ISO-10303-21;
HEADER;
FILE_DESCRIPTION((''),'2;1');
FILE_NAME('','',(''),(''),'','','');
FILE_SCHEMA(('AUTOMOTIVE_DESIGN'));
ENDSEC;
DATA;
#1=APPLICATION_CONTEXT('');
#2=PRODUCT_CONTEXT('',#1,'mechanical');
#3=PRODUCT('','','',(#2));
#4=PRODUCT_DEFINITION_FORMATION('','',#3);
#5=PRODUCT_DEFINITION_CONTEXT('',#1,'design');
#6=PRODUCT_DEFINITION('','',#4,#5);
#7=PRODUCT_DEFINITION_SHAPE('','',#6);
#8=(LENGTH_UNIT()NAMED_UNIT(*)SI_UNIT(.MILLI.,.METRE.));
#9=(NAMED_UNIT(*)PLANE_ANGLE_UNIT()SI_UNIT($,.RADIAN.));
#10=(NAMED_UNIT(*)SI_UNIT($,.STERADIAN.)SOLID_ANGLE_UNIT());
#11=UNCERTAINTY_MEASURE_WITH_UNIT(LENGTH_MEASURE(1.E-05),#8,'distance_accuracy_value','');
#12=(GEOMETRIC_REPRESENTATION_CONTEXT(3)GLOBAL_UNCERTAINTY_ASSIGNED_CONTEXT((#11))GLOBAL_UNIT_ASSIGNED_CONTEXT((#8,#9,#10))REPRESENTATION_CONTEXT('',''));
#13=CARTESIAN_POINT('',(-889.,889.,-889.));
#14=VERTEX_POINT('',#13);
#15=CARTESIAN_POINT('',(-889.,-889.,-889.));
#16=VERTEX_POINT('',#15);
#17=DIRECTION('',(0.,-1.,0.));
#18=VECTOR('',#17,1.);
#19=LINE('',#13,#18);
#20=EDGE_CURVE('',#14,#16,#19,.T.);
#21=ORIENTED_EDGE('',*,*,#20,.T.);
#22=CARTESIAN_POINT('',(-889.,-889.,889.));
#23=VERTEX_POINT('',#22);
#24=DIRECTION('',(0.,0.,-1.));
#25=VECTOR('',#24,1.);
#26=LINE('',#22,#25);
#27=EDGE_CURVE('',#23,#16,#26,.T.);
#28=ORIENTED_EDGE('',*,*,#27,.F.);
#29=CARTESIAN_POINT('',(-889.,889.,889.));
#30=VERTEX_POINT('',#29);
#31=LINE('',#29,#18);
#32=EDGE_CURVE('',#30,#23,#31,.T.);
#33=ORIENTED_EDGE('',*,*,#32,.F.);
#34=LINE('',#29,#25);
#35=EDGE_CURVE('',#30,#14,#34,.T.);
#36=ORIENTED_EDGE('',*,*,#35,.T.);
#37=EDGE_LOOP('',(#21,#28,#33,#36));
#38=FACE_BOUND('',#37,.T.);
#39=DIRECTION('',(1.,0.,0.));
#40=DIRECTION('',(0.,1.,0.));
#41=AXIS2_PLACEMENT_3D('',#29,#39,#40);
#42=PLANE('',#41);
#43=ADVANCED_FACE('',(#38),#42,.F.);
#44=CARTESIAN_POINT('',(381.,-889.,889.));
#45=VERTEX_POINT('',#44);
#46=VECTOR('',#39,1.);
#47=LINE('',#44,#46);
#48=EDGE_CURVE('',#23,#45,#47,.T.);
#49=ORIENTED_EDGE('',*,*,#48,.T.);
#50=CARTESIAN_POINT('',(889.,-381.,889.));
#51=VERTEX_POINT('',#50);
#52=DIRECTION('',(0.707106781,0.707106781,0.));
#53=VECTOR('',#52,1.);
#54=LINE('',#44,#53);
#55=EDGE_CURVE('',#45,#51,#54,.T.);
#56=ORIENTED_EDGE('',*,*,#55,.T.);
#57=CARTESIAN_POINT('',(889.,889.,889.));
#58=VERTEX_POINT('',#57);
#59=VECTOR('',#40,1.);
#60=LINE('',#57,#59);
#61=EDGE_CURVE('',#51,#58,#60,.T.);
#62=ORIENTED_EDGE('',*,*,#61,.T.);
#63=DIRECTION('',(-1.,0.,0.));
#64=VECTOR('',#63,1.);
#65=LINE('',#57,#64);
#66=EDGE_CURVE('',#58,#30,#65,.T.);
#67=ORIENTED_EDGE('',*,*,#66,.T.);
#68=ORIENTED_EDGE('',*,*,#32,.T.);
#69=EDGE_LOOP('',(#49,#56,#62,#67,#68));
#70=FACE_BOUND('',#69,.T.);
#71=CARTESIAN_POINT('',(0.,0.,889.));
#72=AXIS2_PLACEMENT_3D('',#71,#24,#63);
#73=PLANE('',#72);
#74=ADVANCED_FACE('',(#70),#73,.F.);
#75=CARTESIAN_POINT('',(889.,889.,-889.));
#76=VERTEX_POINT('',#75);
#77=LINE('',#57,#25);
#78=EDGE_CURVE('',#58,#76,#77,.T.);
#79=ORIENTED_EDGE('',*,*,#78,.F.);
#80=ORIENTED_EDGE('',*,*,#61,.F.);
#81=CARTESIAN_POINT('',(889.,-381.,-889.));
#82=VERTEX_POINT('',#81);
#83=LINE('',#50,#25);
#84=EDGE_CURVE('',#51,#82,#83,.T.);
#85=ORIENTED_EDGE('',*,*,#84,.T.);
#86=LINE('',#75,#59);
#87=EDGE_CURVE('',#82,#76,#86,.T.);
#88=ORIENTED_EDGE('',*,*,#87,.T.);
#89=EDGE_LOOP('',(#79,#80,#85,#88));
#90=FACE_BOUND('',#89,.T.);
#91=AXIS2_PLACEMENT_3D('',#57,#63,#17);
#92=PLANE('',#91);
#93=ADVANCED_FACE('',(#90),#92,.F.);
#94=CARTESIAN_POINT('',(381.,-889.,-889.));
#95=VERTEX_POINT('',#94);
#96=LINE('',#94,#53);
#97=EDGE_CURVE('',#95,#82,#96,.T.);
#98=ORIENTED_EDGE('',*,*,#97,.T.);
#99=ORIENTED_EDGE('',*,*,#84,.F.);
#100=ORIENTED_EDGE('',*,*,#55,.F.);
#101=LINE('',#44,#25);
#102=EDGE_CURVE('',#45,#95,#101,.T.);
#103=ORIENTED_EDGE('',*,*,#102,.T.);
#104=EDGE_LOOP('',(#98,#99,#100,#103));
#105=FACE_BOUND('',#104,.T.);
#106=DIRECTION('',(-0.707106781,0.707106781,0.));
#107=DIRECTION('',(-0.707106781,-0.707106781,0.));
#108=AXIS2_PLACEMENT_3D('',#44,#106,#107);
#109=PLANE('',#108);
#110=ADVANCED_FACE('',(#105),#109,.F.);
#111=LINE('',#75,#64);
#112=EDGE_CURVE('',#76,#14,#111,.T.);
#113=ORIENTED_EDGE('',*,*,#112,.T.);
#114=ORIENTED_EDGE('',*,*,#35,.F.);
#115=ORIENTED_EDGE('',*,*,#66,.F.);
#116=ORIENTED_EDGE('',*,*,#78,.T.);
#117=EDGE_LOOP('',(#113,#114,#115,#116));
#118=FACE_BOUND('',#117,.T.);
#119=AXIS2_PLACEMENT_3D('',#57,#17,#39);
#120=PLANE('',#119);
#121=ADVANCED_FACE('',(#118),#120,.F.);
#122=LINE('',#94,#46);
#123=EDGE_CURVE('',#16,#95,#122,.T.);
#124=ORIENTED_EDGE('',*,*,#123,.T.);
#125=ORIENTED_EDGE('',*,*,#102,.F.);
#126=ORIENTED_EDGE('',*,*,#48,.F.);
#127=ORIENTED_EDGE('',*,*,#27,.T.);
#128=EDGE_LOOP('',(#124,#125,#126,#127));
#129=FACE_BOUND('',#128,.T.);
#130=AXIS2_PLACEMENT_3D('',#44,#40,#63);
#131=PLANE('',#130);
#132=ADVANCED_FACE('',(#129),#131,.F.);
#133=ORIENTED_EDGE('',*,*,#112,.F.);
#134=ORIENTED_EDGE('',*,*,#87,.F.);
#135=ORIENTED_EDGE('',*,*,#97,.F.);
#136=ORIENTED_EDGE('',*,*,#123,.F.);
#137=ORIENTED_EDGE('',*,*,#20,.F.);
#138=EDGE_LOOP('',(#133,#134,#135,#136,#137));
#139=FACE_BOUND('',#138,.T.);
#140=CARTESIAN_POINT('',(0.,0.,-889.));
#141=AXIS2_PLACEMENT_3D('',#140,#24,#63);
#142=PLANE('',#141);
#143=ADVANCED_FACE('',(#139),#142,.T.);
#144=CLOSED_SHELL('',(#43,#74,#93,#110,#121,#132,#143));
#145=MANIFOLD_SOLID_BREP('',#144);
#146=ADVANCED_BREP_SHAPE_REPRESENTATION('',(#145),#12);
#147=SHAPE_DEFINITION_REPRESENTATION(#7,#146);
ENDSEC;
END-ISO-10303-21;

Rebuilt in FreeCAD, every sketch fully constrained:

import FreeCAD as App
import Part
import Sketcher
from FreeCAD import Vector
Q = App.Units.Quantity

doc = App.newDocument("Part")
params = doc.addObject("Spreadsheet::Sheet", "Params")
for row, (alias, value) in enumerate([
    ("sketch1_width", "70 in"),
    ("sketch1_width2", "50 in"),
    ("pad1_length", "70 in"),
], start=1):
    params.set(f"A{row}", alias)
    params.set(f"B{row}", "=" + value)
    params.setAlias(f"B{row}", alias)

body = doc.addObject("PartDesign::Body", "Body")

# Sketch on XY plane
sketch1 = doc.addObject("Sketcher::SketchObject", "Sketch")
body.addObject(sketch1)
sketch1.AttachmentSupport = (doc.XY_Plane, [""])
sketch1.MapMode = "FlatFace"
sketch1.addGeometry([
    Part.LineSegment(Vector(381, -889, 0), Vector(889, -381, 0)),  # 0
    Part.LineSegment(Vector(889, -381, 0), Vector(889, 889, 0)),  # 1
    Part.LineSegment(Vector(889, 889, 0), Vector(-889, 889, 0)),  # 2
    Part.LineSegment(Vector(-889, 889, 0), Vector(-889, -889, 0)),  # 3
    Part.LineSegment(Vector(-889, -889, 0), Vector(381, -889, 0)),  # 4
], False)
sketch1.addConstraint([
    Sketcher.Constraint("Coincident", 0, 2, 1, 1),
    Sketcher.Constraint("Coincident", 1, 2, 2, 1),
    Sketcher.Constraint("Coincident", 2, 2, 3, 1),
    Sketcher.Constraint("Coincident", 3, 2, 4, 1),
    Sketcher.Constraint("Coincident", 4, 2, 0, 1),
    Sketcher.Constraint("Vertical", 1),
    Sketcher.Constraint("Horizontal", 2),
    Sketcher.Constraint("Vertical", 3),
    Sketcher.Constraint("Horizontal", 4),
    Sketcher.Constraint("Symmetric", 1, 2, 3, 2, -1, 1),
    Sketcher.Constraint("Equal", 4, 1),
    Sketcher.Constraint("Equal", 2, 3),
    Sketcher.Constraint("DistanceX", 2, 2, 2, 1, Q("70 in")),
    Sketcher.Constraint("DistanceX", 4, 1, 4, 2, Q("50 in")),
])
sketch1.setExpression("Constraints[12]", "Params.sketch1_width")
sketch1.setExpression("Constraints[13]", "Params.sketch1_width2")
pad1 = doc.addObject("PartDesign::Pad", "Pad")
body.addObject(pad1)
pad1.Profile = sketch1
pad1.setExpression("Length", "Params.pad1_length")
pad1.Midplane = True

doc.recompute()
